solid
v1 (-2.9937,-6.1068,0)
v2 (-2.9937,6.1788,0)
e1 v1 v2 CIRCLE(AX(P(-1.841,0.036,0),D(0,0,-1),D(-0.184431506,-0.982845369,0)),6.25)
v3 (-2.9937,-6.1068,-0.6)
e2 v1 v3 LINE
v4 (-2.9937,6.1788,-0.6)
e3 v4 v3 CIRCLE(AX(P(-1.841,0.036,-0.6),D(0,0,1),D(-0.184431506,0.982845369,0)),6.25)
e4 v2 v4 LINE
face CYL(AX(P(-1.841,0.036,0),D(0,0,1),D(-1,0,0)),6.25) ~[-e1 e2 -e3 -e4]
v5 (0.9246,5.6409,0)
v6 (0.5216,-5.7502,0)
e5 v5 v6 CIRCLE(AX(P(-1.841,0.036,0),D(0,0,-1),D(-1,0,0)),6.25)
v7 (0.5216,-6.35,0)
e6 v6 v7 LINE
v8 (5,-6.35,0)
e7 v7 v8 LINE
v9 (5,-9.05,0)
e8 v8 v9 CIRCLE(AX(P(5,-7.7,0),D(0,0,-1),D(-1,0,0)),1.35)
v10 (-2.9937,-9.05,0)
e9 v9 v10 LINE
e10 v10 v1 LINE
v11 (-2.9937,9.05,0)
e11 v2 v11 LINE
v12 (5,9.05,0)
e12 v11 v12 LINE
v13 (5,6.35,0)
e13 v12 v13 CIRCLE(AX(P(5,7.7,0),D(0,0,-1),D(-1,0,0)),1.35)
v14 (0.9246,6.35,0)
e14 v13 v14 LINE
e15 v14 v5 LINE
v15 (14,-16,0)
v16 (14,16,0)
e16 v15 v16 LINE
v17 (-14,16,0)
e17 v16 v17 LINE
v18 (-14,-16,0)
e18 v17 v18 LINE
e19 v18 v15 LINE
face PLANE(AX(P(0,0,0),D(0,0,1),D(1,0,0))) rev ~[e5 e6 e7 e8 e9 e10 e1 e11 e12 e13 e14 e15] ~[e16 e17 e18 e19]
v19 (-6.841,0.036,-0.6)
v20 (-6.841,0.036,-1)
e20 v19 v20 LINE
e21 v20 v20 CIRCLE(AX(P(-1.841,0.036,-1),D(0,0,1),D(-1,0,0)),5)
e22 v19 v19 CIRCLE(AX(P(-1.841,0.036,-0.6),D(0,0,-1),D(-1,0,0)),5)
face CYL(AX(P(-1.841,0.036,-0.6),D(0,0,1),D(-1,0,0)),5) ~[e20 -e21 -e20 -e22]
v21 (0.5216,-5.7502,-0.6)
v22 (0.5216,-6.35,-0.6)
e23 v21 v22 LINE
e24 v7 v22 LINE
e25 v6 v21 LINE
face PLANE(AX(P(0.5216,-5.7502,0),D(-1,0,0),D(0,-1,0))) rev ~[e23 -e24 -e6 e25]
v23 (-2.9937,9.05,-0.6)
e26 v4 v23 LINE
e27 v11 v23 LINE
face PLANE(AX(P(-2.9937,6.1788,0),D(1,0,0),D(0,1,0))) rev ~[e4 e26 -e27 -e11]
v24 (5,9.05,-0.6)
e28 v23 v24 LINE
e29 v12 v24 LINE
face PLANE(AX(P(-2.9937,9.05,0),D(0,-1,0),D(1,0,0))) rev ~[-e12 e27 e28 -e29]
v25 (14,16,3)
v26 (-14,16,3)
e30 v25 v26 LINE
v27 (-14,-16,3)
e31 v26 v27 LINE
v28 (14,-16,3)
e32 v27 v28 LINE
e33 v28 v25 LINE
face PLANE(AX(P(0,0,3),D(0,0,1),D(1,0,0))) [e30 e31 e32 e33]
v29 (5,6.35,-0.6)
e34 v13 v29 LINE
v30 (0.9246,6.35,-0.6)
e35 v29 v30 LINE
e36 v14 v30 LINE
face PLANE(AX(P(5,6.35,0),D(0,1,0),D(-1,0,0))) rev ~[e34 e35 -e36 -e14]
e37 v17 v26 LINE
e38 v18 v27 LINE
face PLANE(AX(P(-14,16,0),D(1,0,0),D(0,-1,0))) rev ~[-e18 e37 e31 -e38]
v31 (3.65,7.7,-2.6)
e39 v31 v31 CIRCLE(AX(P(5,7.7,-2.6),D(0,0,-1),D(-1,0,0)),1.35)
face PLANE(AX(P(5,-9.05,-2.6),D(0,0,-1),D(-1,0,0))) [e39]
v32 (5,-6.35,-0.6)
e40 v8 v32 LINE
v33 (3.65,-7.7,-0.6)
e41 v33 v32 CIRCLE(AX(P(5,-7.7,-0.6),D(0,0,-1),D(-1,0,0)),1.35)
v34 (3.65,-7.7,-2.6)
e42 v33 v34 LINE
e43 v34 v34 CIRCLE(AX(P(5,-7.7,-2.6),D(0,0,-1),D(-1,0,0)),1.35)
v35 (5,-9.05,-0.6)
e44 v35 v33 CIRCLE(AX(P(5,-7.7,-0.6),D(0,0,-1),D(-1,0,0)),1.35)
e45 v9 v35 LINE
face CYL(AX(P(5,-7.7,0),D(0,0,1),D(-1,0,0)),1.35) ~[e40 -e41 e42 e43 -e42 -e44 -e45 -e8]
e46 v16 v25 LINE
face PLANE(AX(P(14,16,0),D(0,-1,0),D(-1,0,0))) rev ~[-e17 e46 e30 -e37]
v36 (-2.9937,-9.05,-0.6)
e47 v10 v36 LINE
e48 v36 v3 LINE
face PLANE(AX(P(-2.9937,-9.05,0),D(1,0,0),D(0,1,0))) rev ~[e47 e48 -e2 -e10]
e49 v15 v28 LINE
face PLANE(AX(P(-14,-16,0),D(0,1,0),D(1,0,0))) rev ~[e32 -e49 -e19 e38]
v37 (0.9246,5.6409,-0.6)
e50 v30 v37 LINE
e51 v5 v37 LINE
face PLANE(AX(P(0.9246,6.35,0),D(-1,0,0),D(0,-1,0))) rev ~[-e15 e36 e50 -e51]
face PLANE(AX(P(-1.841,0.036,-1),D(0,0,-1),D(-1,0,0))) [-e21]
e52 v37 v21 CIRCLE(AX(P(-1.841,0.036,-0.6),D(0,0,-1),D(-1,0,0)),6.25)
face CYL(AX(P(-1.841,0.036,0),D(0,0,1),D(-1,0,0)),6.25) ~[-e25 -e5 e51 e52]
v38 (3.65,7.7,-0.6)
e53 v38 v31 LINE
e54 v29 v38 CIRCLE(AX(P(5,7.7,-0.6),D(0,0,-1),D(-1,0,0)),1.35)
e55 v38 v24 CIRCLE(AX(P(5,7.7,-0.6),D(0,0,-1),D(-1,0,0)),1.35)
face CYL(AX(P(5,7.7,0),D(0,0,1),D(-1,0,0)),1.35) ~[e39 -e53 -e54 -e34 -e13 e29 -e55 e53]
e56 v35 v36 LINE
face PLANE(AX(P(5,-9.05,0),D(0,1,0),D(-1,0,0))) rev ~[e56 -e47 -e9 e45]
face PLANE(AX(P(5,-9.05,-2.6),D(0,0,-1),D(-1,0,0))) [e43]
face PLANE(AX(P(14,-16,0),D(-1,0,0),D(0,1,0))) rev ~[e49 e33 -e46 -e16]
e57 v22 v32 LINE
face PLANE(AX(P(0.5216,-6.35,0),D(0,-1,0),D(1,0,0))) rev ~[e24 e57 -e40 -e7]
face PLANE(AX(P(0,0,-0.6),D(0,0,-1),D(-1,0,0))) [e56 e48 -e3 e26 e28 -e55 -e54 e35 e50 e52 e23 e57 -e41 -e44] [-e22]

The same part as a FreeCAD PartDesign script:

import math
import FreeCAD as App
import Part
import Sketcher

doc = App.newDocument("Part")
body = doc.addObject("PartDesign::Body", "Body")

# Sketch on XY plane
sketch1 = body.newObject("Sketcher::SketchObject", "Sketch")
sketch1.AttachmentSupport = (doc.getObject("XY_Plane"), [""])
sketch1.MapMode = "FlatFace"
sketch1.addGeometry([
    Part.LineSegment(App.Vector(-14, 16, 0), App.Vector(-14, -16, 0)),
    Part.LineSegment(App.Vector(-14, -16, 0), App.Vector(14, -16, 0)),
    Part.LineSegment(App.Vector(14, -16, 0), App.Vector(14, 16, 0)),
    Part.LineSegment(App.Vector(14, 16, 0), App.Vector(-14, 16, 0)),
], False)
sketch1.addConstraint([
    Sketcher.Constraint("Coincident", 0, 2, 1, 1),
    Sketcher.Constraint("Coincident", 1, 2, 2, 1),
    Sketcher.Constraint("Coincident", 2, 2, 3, 1),
    Sketcher.Constraint("Coincident", 3, 2, 0, 1),
    Sketcher.Constraint("Vertical", 0),
    Sketcher.Constraint("Horizontal", 1),
    Sketcher.Constraint("Vertical", 2),
    Sketcher.Constraint("Horizontal", 3),
    Sketcher.Constraint("Symmetric", 0, 2, 2, 2, -1, 1),
    Sketcher.Constraint("DistanceX", 1, 1, 1, 2, 28.0),
    Sketcher.Constraint("DistanceY", 0, 2, 0, 1, 32.0),
])
pad1 = body.newObject("PartDesign::Pad", "Pad")
pad1.Profile = sketch1
pad1.Length = 3

# Sketch on XY plane
sketch2 = body.newObject("Sketcher::SketchObject", "Sketch001")
sketch2.AttachmentSupport = (doc.getObject("XY_Plane"), [""])
sketch2.MapMode = "FlatFace"
sketch2.addGeometry([
    Part.ArcOfCircle(Part.Circle(App.Vector(-1.8, 0, 0), App.Vector(0, 0, 1), 6.2), math.radians(101), math.radians(259)),  # 0
    Part.LineSegment(App.Vector(-3, 6.2, 0), App.Vector(-3, 9.1, 0)),  # 1
    Part.LineSegment(App.Vector(-3, 9.1, 0), App.Vector(5, 9.1, 0)),  # 2
    Part.ArcOfCircle(Part.Circle(App.Vector(5, 7.7, 0), App.Vector(0, 0, 1), 1.4), math.radians(-90), math.radians(90)),  # 3
    Part.LineSegment(App.Vector(5, 6.3, 0), App.Vector(0.9, 6.3, 0)),  # 4
    Part.LineSegment(App.Vector(0.9, 6.3, 0), App.Vector(0.9, 5.6, 0)),  # 5
    Part.ArcOfCircle(Part.Circle(App.Vector(-1.8, 0, 0), App.Vector(0, 0, 1), 6.2), math.radians(-68), math.radians(64)),  # 6
    Part.LineSegment(App.Vector(0.5, -5.8, 0), App.Vector(0.5, -6.3, 0)),  # 7
    Part.LineSegment(App.Vector(0.5, -6.3, 0), App.Vector(5, -6.3, 0)),  # 8
    Part.ArcOfCircle(Part.Circle(App.Vector(5, -7.7, 0), App.Vector(0, 0, 1), 1.4), math.radians(-90), math.radians(90)),  # 9
    Part.LineSegment(App.Vector(5, -9.1, 0), App.Vector(-3, -9.1, 0)),  # 10
    Part.LineSegment(App.Vector(-3, -9.1, 0), App.Vector(-3, -6.1, 0)),  # 11
], False)
sketch2.addConstraint([
    Sketcher.Constraint("Coincident", 0, 1, 1, 1),
    Sketcher.Constraint("Coincident", 1, 2, 2, 1),
    Sketcher.Constraint("Tangent", 2, 2, 3, 2),
    Sketcher.Constraint("Tangent", 3, 1, 4, 1),
    Sketcher.Constraint("Coincident", 4, 2, 5, 1),
    Sketcher.Constraint("Coincident", 5, 2, 6, 2),
    Sketcher.Constraint("Coincident", 6, 1, 7, 1),
    Sketcher.Constraint("Coincident", 7, 2, 8, 1),
    Sketcher.Constraint("Tangent", 8, 2, 9, 2),
    Sketcher.Constraint("Tangent", 9, 1, 10, 1),
    Sketcher.Constraint("Coincident", 10, 2, 11, 1),
    Sketcher.Constraint("Coincident", 11, 2, 0, 2),
    Sketcher.Constraint("Vertical", 1),
    Sketcher.Constraint("Horizontal", 2),
    Sketcher.Constraint("Horizontal", 4),
    Sketcher.Constraint("Vertical", 5),
    Sketcher.Constraint("Vertical", 7),
    Sketcher.Constraint("Horizontal", 8),
    Sketcher.Constraint("Horizontal", 10),
    Sketcher.Constraint("Vertical", 11),
    Sketcher.Constraint("Coincident", 6, 3, 0, 3),
    Sketcher.Constraint("Equal", 0, 6),
    Sketcher.Constraint("Equal", 3, 9),
    Sketcher.Constraint("Symmetric", 3, 3, 9, 3, -1),
    Sketcher.Constraint("Vertical", 1, 2, 10, 2),
    Sketcher.Constraint("Radius", 0, 6.25),
    Sketcher.Constraint("Radius", 3, 1.35),
    Sketcher.Constraint("DistanceX", -1, 1, 3, 3, 5.0),
    Sketcher.Constraint("DistanceY", -1, 1, 3, 3, 7.7),
    Sketcher.Constraint("DistanceY", 5, 2, 5, 1, 0.709),
    Sketcher.Constraint("DistanceX", 2, 1, 2, 2, 7.9937),
    Sketcher.Constraint("DistanceX", 4, 2, 4, 1, 4.0754),
    Sketcher.Constraint("DistanceX", 8, 1, 8, 2, 4.4784),
    Sketcher.Constraint("DistanceY", 1, 1, 1, 2, 2.8712),
])
pad2 = body.newObject("PartDesign::Pad", "Pad001")
pad2.Profile = sketch2
pad2.Length = 0.6
pad2.Reversed = True

# Sketch on XY plane
sketch3 = body.newObject("Sketcher::SketchObject", "Sketch002")
sketch3.AttachmentSupport = (doc.getObject("XY_Plane"), [""])
sketch3.MapMode = "FlatFace"
sketch3.AttachmentOffset = App.Placement(App.Vector(0, 0, -0.6), App.Rotation())
sketch3.addGeometry([
    Part.Circle(App.Vector(-1.8, 0, 0), App.Vector(0, 0, 1), 5),
    Part.Circle(App.Vector(5, 7.7, 0), App.Vector(0, 0, 1), 1.4),
    Part.Circle(App.Vector(5, -7.7, 0), App.Vector(0, 0, 1), 1.4),
], False)
sketch3.addConstraint([
    Sketcher.Constraint("Equal", 1, 2),
    Sketcher.Constraint("Symmetric", 1, 3, 2, 3, -1),
    Sketcher.Constraint("Diameter", 0, 10.0),
    Sketcher.Constraint("Diameter", 1, 2.7),
    Sketcher.Constraint("DistanceX", -1, 1, 1, 3, 5.0),
    Sketcher.Constraint("DistanceY", -1, 1, 1, 3, 7.7),
    Sketcher.Constraint("DistanceX", 0, 3, -1, 1, 1.841),
    Sketcher.Constraint("DistanceY", -1, 1, 0, 3, 0.036),
])
pad3 = body.newObject("PartDesign::Pad", "Pad002")
pad3.Profile = sketch3
pad3.Length = 2
pad3.Reversed = True

# Sketch on XY plane
sketch4 = body.newObject("Sketcher::SketchObject", "Sketch003")
sketch4.AttachmentSupport = (doc.getObject("XY_Plane"), [""])
sketch4.MapMode = "FlatFace"
sketch4.AttachmentOffset = App.Placement(App.Vector(0, 0, -2.6), App.Rotation())
sketch4.addGeometry(Part.Circle(App.Vector(-2, 0, 0), App.Vector(0, 0, 1), 5), False)
sketch4.addConstraint([
    Sketcher.Constraint("Diameter", 0, 10.4),
    Sketcher.Constraint("DistanceX", 0, 3, -1, 1, 1.841),
    Sketcher.Constraint("DistanceY", -1, 1, 0, 3, 0.036),
])
pocket1 = body.newObject("PartDesign::Pocket", "Pocket")
pocket1.Profile = sketch4
pocket1.Length = 1.6
pocket1.Reversed = True

doc.recompute()
